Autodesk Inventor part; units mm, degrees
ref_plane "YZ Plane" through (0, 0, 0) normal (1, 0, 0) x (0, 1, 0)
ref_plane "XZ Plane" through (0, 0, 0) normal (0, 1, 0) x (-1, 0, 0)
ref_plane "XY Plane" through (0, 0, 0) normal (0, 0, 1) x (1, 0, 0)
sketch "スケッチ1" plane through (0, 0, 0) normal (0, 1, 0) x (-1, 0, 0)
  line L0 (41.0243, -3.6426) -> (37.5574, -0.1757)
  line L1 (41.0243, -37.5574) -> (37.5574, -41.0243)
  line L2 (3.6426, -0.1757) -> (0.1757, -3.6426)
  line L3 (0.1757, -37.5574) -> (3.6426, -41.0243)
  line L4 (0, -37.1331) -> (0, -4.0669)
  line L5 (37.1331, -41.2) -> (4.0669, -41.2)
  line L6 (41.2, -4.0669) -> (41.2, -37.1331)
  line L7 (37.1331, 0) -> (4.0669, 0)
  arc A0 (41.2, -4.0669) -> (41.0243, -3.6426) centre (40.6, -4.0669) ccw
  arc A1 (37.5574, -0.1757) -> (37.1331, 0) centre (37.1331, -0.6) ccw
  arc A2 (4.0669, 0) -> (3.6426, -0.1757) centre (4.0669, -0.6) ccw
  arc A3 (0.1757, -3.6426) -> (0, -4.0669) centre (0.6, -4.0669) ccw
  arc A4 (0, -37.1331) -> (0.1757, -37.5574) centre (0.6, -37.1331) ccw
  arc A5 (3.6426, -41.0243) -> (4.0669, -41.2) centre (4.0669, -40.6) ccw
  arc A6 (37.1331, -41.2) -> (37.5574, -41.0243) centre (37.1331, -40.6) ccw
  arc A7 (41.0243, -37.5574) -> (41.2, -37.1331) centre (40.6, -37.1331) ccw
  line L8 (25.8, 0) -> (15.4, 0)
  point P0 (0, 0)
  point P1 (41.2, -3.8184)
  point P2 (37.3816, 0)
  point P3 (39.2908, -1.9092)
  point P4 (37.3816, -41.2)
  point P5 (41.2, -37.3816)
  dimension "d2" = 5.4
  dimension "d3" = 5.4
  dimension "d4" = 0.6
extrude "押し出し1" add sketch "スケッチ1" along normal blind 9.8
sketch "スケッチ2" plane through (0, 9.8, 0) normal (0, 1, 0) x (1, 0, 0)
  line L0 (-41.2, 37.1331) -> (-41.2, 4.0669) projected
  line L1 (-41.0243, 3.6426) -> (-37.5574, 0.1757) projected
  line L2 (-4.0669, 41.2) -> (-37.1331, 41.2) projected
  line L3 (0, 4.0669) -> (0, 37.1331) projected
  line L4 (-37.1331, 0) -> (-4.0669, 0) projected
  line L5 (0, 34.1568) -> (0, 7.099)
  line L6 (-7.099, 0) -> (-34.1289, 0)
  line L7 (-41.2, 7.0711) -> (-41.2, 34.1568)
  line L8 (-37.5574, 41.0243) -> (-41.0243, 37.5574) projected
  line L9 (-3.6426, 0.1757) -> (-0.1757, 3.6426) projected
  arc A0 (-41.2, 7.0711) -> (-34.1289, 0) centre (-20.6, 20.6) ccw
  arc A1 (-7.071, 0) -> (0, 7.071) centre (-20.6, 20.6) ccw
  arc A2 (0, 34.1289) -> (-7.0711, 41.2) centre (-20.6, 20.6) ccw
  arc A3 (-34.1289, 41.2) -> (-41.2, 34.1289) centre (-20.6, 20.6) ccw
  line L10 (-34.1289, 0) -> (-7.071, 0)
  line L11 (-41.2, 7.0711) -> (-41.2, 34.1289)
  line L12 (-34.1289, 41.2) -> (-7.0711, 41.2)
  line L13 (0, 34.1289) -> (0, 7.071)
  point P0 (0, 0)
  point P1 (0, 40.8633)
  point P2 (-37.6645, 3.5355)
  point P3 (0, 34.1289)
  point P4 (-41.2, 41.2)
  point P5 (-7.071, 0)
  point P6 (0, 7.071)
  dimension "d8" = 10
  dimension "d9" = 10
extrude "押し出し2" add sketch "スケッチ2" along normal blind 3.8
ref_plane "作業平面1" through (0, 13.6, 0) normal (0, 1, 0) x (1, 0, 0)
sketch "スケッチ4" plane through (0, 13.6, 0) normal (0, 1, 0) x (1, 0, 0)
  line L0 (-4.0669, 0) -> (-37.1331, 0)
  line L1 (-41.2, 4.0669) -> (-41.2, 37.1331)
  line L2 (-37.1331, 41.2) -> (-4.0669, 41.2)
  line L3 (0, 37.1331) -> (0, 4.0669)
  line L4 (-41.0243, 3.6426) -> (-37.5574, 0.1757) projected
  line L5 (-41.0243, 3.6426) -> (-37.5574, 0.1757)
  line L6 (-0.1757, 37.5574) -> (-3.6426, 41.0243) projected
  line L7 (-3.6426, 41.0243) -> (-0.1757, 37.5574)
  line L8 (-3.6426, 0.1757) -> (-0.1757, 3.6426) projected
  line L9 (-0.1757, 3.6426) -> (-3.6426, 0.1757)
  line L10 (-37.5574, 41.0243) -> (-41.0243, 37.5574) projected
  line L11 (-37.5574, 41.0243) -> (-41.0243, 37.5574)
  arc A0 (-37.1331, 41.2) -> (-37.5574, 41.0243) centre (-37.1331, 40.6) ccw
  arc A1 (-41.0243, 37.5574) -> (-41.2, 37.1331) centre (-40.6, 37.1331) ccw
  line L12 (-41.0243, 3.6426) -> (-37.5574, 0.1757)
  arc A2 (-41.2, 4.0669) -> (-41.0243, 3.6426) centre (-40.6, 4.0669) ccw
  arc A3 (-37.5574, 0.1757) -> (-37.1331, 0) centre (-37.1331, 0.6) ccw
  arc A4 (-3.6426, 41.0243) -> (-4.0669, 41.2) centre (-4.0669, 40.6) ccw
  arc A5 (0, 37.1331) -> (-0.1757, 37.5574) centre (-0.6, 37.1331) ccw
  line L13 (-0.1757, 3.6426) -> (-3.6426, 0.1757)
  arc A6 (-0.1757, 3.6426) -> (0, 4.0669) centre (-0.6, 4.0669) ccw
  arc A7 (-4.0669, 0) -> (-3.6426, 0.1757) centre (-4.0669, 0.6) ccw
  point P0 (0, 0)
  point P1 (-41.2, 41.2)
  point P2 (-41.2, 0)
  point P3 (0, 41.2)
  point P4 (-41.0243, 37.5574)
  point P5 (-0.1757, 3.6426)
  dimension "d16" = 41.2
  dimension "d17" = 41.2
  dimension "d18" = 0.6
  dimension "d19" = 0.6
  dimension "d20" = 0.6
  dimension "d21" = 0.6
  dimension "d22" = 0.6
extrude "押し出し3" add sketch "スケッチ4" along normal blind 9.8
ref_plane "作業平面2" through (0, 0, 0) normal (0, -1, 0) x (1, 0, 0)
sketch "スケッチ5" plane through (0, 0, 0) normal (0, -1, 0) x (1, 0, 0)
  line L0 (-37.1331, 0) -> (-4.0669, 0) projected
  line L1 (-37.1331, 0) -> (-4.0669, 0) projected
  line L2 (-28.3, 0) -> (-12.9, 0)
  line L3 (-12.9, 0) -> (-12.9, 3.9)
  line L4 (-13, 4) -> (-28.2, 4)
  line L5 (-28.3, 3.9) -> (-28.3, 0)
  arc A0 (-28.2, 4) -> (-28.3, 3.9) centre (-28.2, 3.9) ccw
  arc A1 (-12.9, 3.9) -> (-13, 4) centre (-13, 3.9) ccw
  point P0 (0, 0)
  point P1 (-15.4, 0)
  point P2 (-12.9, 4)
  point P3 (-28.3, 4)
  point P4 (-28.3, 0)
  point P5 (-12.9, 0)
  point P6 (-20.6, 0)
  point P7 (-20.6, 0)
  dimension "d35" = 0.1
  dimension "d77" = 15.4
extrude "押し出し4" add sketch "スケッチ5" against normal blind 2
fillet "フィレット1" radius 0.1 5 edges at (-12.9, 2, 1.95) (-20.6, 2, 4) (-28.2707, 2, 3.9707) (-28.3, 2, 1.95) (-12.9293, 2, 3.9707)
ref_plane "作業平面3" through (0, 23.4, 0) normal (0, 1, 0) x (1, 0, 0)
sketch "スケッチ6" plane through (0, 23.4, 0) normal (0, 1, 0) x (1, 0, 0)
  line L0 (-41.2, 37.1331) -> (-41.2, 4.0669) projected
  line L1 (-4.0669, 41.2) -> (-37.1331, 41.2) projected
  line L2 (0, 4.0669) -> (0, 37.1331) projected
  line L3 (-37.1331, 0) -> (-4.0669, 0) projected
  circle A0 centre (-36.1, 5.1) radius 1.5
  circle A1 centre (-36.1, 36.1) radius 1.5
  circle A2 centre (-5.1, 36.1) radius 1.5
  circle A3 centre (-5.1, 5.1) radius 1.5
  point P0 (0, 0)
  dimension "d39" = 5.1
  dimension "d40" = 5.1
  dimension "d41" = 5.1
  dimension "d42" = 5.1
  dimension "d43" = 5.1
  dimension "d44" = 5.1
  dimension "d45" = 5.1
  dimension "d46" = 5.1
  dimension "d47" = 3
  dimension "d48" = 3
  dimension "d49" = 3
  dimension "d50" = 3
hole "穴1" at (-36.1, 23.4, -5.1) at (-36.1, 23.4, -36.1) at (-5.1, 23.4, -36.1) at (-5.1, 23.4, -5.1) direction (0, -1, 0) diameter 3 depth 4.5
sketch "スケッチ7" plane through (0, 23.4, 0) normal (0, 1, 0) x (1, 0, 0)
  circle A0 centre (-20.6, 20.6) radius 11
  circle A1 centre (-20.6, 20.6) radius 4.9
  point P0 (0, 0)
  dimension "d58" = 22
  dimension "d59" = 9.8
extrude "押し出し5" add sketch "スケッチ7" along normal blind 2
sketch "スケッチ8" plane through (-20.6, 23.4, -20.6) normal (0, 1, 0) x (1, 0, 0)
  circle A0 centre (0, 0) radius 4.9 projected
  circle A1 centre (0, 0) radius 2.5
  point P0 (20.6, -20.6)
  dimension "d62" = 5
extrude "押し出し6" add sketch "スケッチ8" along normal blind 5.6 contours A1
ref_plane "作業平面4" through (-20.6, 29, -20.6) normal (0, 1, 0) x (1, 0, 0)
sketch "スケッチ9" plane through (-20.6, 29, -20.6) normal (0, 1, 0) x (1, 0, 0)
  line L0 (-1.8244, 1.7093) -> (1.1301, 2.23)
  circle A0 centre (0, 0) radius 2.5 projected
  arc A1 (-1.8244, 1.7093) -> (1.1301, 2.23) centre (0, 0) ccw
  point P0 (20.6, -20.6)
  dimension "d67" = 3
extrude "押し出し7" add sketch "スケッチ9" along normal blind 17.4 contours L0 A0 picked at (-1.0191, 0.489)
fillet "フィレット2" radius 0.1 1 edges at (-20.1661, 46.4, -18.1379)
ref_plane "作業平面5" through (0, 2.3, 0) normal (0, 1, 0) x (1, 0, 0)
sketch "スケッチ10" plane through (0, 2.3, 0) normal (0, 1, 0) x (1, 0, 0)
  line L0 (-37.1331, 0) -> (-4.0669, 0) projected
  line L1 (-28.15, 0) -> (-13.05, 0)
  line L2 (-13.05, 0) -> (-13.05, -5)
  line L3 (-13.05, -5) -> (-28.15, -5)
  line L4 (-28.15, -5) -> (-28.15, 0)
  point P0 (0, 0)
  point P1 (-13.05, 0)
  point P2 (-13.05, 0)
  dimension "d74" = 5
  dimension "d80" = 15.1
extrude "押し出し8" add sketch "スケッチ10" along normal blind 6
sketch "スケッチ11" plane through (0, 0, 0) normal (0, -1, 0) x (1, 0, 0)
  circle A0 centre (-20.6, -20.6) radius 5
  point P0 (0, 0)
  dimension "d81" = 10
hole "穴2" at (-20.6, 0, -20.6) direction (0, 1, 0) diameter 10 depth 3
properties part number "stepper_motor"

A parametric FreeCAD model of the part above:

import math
import FreeCAD as App
import Part
import Sketcher


def edges_at(feature, points):
    """Names of the edges that pass closest to the given points."""
    edges = feature.Shape.Edges
    near = lambda p: min(range(len(edges)), key=lambda i: edges[i].distToShape(Part.Vertex(*p))[0])
    return sorted({f"Edge{near(p) + 1}" for p in points})

doc = App.newDocument("Part")
params = doc.addObject("Spreadsheet::Sheet", "Params")
for row, (alias, value) in enumerate([
    ("sketch1_radius", "0.6 mm"),
    ("pad1_length", "9.8 mm"),
    ("pad2_length", "3.8 mm"),
    ("sketch3_radius", "0.6 mm"),
    ("pad3_length", "9.8 mm"),
    ("sketch4_radius", "0.1 mm"),
    ("sketch4_width", "15.4 mm"),
    ("sketch4_height", "3.9 mm"),
    ("pad4_length", "2 mm"),
    ("fillet_radius", "0.1 mm"),
    ("sketch5_diameter", "3 mm"),
    ("hole_diameter", "3 mm"),
    ("hole_depth", "4.5 mm"),
    ("sketch6_diameter", "22 mm"),
    ("sketch6_diameter2", "9.8 mm"),
    ("pad5_length", "2 mm"),
    ("sketch7_diameter", "5 mm"),
    ("pad6_length", "5.6 mm"),
    ("sketch8_length", "3 mm"),
    ("sketch8_radius", "2.5 mm"),
    ("pad7_length", "17.4 mm"),
    ("fillet2_radius", "0.1 mm"),
    ("sketch9_height", "5 mm"),
    ("sketch9_width", "15.1 mm"),
    ("pad8_length", "6 mm"),
    ("sketch10_diameter", "10 mm"),
    ("hole2_diameter", "10 mm"),
    ("hole2_depth", "3 mm"),
], start=1):
    params.set(f"A{row}", alias)
    params.set(f"B{row}", "=" + value)
    params.setAlias(f"B{row}", alias)

body = doc.addObject("PartDesign::Body", "Body")

# Sketch on XZ plane
sketch1 = body.newObject("Sketcher::SketchObject", "Sketch")
sketch1.AttachmentSupport = (doc.getObject("XZ_Plane"), [""])
sketch1.MapMode = "FlatFace"
sketch1.addGeometry([
    Part.ArcOfCircle(Part.Circle(App.Vector(-40.6, -4.07, 0), App.Vector(0, 0, 1), 0.6), math.radians(135), math.radians(180)),  # 0
    Part.LineSegment(App.Vector(-41.02, -3.64, 0), App.Vector(-37.56, -0.18, 0)),  # 1
    Part.ArcOfCircle(Part.Circle(App.Vector(-37.13, -0.6, 0), App.Vector(0, 0, 1), 0.6), math.radians(90), math.radians(135)),  # 2
    Part.LineSegment(App.Vector(-37.13, 0, 0), App.Vector(-4.07, 0, 0)),  # 3
    Part.ArcOfCircle(Part.Circle(App.Vector(-4.07, -0.6, 0), App.Vector(0, 0, 1), 0.6), math.radians(45), math.radians(90)),  # 4
    Part.LineSegment(App.Vector(-3.64, -0.18, 0), App.Vector(-0.18, -3.64, 0)),  # 5
    Part.ArcOfCircle(Part.Circle(App.Vector(-0.6, -4.07, 0), App.Vector(0, 0, 1), 0.6), math.radians(0), math.radians(45)),  # 6
    Part.LineSegment(App.Vector(0, -4.07, 0), App.Vector(0, -37.13, 0)),  # 7
    Part.ArcOfCircle(Part.Circle(App.Vector(-0.6, -37.13, 0), App.Vector(0, 0, 1), 0.6), math.radians(-45), math.radians(0)),  # 8
    Part.LineSegment(App.Vector(-0.18, -37.56, 0), App.Vector(-3.64, -41.02, 0)),  # 9
    Part.ArcOfCircle(Part.Circle(App.Vector(-4.07, -40.6, 0), App.Vector(0, 0, 1), 0.6), math.radians(-90), math.radians(-45)),  # 10
    Part.LineSegment(App.Vector(-4.07, -41.2, 0), App.Vector(-37.13, -41.2, 0)),  # 11
    Part.ArcOfCircle(Part.Circle(App.Vector(-37.13, -40.6, 0), App.Vector(0, 0, 1), 0.6), math.radians(-135), math.radians(-90)),  # 12
    Part.LineSegment(App.Vector(-37.56, -41.02, 0), App.Vector(-41.02, -37.56, 0)),  # 13
    Part.ArcOfCircle(Part.Circle(App.Vector(-40.6, -37.13, 0), App.Vector(0, 0, 1), 0.6), math.radians(180), math.radians(225)),  # 14
    Part.LineSegment(App.Vector(-41.2, -37.13, 0), App.Vector(-41.2, -4.07, 0)),  # 15
], False)
sketch1.addConstraint([
    Sketcher.Constraint("Tangent", 0, 1, 1, 1),
    Sketcher.Constraint("Tangent", 1, 2, 2, 2),
    Sketcher.Constraint("Tangent", 2, 1, 3, 1),
    Sketcher.Constraint("Tangent", 3, 2, 4, 2),
    Sketcher.Constraint("Tangent", 4, 1, 5, 1),
    Sketcher.Constraint("Tangent", 5, 2, 6, 2),
    Sketcher.Constraint("Tangent", 6, 1, 7, 1),
    Sketcher.Constraint("Tangent", 7, 2, 8, 2),
    Sketcher.Constraint("Tangent", 8, 1, 9, 1),
    Sketcher.Constraint("Tangent", 9, 2, 10, 2),
    Sketcher.Constraint("Tangent", 10, 1, 11, 1),
    Sketcher.Constraint("Tangent", 11, 2, 12, 2),
    Sketcher.Constraint("Tangent", 12, 1, 13, 1),
    Sketcher.Constraint("Tangent", 13, 2, 14, 2),
    Sketcher.Constraint("Tangent", 14, 1, 15, 1),
    Sketcher.Constraint("Tangent", 15, 2, 0, 2),
    Sketcher.Constraint("Horizontal", 3),
    Sketcher.Constraint("Vertical", 7),
    Sketcher.Constraint("Horizontal", 11),
    Sketcher.Constraint("Vertical", 15),
    Sketcher.Constraint("Equal", 0, 2),
    Sketcher.Constraint("Equal", 2, 4),
    Sketcher.Constraint("Equal", 4, 6),
    Sketcher.Constraint("Equal", 6, 8),
    Sketcher.Constraint("Equal", 8, 10),
    Sketcher.Constraint("Equal", 10, 12),
    Sketcher.Constraint("Equal", 12, 14),
    Sketcher.Constraint("PointOnObject", 2, 1, -1),
    Sketcher.Constraint("PointOnObject", 6, 1, -2),
    Sketcher.Constraint("Perpendicular", 1, 5),
    Sketcher.Constraint("Perpendicular", 5, 9),
    Sketcher.Constraint("Perpendicular", 9, 13),
    Sketcher.Constraint("Horizontal", 0, 3, 6, 3),
    Sketcher.Constraint("Horizontal", 8, 3, 14, 3),
    Sketcher.Constraint("Horizontal", 1, 2, 4, 1),
    Sketcher.Constraint("Vertical", 4, 3, 10, 3),
    Sketcher.Constraint("Equal", 11, 7),
    Sketcher.Constraint("Radius", 0, 0.6),
    Sketcher.Constraint("DistanceX", 0, 3, 6, 3, 40.0),
    Sketcher.Constraint("Distance", 1, 4.903),
])
sketch1.setExpression("Constraints[37]", "Params.sketch1_radius")
pad1 = body.newObject("PartDesign::Pad", "Pad")
pad1.Profile = sketch1
pad1.setExpression("Length", "Params.pad1_length")
pad1.Reversed = True

# Sketch on XZ plane
sketch2 = body.newObject("Sketcher::SketchObject", "Sketch001")
sketch2.AttachmentSupport = (doc.getObject("XZ_Plane"), [""])
sketch2.MapMode = "FlatFace"
sketch2.AttachmentOffset = App.Placement(App.Vector(0, 0, -9.8), App.Rotation())
sketch2.addGeometry([
    Part.ArcOfCircle(Part.Circle(App.Vector(-21, -21, 0), App.Vector(0, 0, 1), 25), math.radians(-147), math.radians(-123)),  # 0
    Part.LineSegment(App.Vector(-41, -34, 0), App.Vector(-41, -7, 0)),  # 1
    Part.ArcOfCircle(Part.Circle(App.Vector(-21, -21, 0), App.Vector(0, 0, 1), 25), math.radians(123), math.radians(147)),  # 2
    Part.LineSegment(App.Vector(-34, 0, 0), App.Vector(-7, 0, 0)),  # 3
    Part.ArcOfCircle(Part.Circle(App.Vector(-21, -21, 0), App.Vector(0, 0, 1), 25), math.radians(33), math.radians(57)),  # 4
    Part.LineSegment(App.Vector(0, -7, 0), App.Vector(0, -34, 0)),  # 5
    Part.ArcOfCircle(Part.Circle(App.Vector(-21, -21, 0), App.Vector(0, 0, 1), 25), math.radians(-57), math.radians(-33)),  # 6
    Part.LineSegment(App.Vector(-7, -41, 0), App.Vector(-34, -41, 0)),  # 7
], False)
sketch2.addConstraint([
    Sketcher.Constraint("Coincident", 0, 1, 1, 1),
    Sketcher.Constraint("Coincident", 1, 2, 2, 2),
    Sketcher.Constraint("Coincident", 2, 1, 3, 1),
    Sketcher.Constraint("Coincident", 3, 2, 4, 2),
    Sketcher.Constraint("Coincident", 4, 1, 5, 1),
    Sketcher.Constraint("Coincident", 5, 2, 6, 2),
    Sketcher.Constraint("Coincident", 6, 1, 7, 1),
    Sketcher.Constraint("Coincident", 7, 2, 0, 2),
    Sketcher.Constraint("Vertical", 1),
    Sketcher.Constraint("Horizontal", 3),
    Sketcher.Constraint("Vertical", 5),
    Sketcher.Constraint("Horizontal", 7),
    Sketcher.Constraint("Coincident", 2, 3, 0, 3),
    Sketcher.Constraint("Coincident", 4, 3, 0, 3),
    Sketcher.Constraint("Coincident", 6, 3, 0, 3),
    Sketcher.Constraint("Equal", 0, 2),
    Sketcher.Constraint("Equal", 2, 4),
    Sketcher.Constraint("Equal", 4, 6),
    Sketcher.Constraint("PointOnObject", 2, 1, -1),
    Sketcher.Constraint("PointOnObject", 4, 1, -2),
    Sketcher.Constraint("Horizontal", 1, 2, 4, 1),
    Sketcher.Constraint("Vertical", 3, 2, 6, 1),
    Sketcher.Constraint("Equal", 7, 1),
    Sketcher.Constraint("DistanceX", 0, 3, -1, 1, 20.6),
    Sketcher.Constraint("Radius", 0, 24.6453),
])
pad2 = body.newObject("PartDesign::Pad", "Pad001")
pad2.Profile = sketch2
pad2.setExpression("Length", "Params.pad2_length")
pad2.Reversed = True

# Sketch on XZ plane
sketch3 = body.newObject("Sketcher::SketchObject", "Sketch002")
sketch3.AttachmentSupport = (doc.getObject("XZ_Plane"), [""])
sketch3.MapMode = "FlatFace"
sketch3.AttachmentOffset = App.Placement(App.Vector(0, 0, -13.6), App.Rotation())
sketch3.addGeometry([
    Part.LineSegment(App.Vector(-37.13, 0, 0), App.Vector(-4.07, 0, 0)),  # 0
    Part.ArcOfCircle(Part.Circle(App.Vector(-4.07, -0.6, 0), App.Vector(0, 0, 1), 0.6), math.radians(45), math.radians(90)),  # 1
    Part.LineSegment(App.Vector(-3.64, -0.18, 0), App.Vector(-0.18, -3.64, 0)),  # 2
    Part.ArcOfCircle(Part.Circle(App.Vector(-0.6, -4.07, 0), App.Vector(0, 0, 1), 0.6), math.radians(0), math.radians(45)),  # 3
    Part.LineSegment(App.Vector(0, -4.07, 0), App.Vector(0, -37.13, 0)),  # 4
    Part.ArcOfCircle(Part.Circle(App.Vector(-0.6, -37.13, 0), App.Vector(0, 0, 1), 0.6), math.radians(-45), math.radians(0)),  # 5
    Part.LineSegment(App.Vector(-0.18, -37.56, 0), App.Vector(-3.64, -41.02, 0)),  # 6
    Part.ArcOfCircle(Part.Circle(App.Vector(-4.07, -40.6, 0), App.Vector(0, 0, 1), 0.6), math.radians(-90), math.radians(-45)),  # 7
    Part.LineSegment(App.Vector(-4.07, -41.2, 0), App.Vector(-37.13, -41.2, 0)),  # 8
    Part.ArcOfCircle(Part.Circle(App.Vector(-37.13, -40.6, 0), App.Vector(0, 0, 1), 0.6), math.radians(-135), math.radians(-90)),  # 9
    Part.LineSegment(App.Vector(-37.56, -41.02, 0), App.Vector(-41.02, -37.56, 0)),  # 10
    Part.ArcOfCircle(Part.Circle(App.Vector(-40.6, -37.13, 0), App.Vector(0, 0, 1), 0.6), math.radians(180), math.radians(225)),  # 11
    Part.LineSegment(App.Vector(-41.2, -37.13, 0), App.Vector(-41.2, -4.07, 0)),  # 12
    Part.ArcOfCircle(Part.Circle(App.Vector(-40.6, -4.07, 0), App.Vector(0, 0, 1), 0.6), math.radians(135), math.radians(180)),  # 13
    Part.LineSegment(App.Vector(-41.02, -3.64, 0), App.Vector(-37.56, -0.18, 0)),  # 14
    Part.ArcOfCircle(Part.Circle(App.Vector(-37.13, -0.6, 0), App.Vector(0, 0, 1), 0.6), math.radians(90), math.radians(135)),  # 15
], False)
sketch3.addConstraint([
    Sketcher.Constraint("Tangent", 0, 2, 1, 2),
    Sketcher.Constraint("Tangent", 1, 1, 2, 1),
    Sketcher.Constraint("Tangent", 2, 2, 3, 2),
    Sketcher.Constraint("Tangent", 3, 1, 4, 1),
    Sketcher.Constraint("Tangent", 4, 2, 5, 2),
    Sketcher.Constraint("Tangent", 5, 1, 6, 1),
    Sketcher.Constraint("Tangent", 6, 2, 7, 2),
    Sketcher.Constraint("Tangent", 7, 1, 8, 1),
    Sketcher.Constraint("Tangent", 8, 2, 9, 2),
    Sketcher.Constraint("Tangent", 9, 1, 10, 1),
    Sketcher.Constraint("Tangent", 10, 2, 11, 2),
    Sketcher.Constraint("Tangent", 11, 1, 12, 1),
    Sketcher.Constraint("Tangent", 12, 2, 13, 2),
    Sketcher.Constraint("Tangent", 13, 1, 14, 1),
    Sketcher.Constraint("Tangent", 14, 2, 15, 2),
    Sketcher.Constraint("Tangent", 15, 1, 0, 1),
    Sketcher.Constraint("Horizontal", 0),
    Sketcher.Constraint("Vertical", 4),
    Sketcher.Constraint("Horizontal", 8),
    Sketcher.Constraint("Vertical", 12),
    Sketcher.Constraint("Equal", 1, 3),
    Sketcher.Constraint("Equal", 3, 5),
    Sketcher.Constraint("Equal", 5, 7),
    Sketcher.Constraint("Equal", 7, 9),
    Sketcher.Constraint("Equal", 9, 11),
    Sketcher.Constraint("Equal", 11, 13),
    Sketcher.Constraint("Equal", 13, 15),
    Sketcher.Constraint("PointOnObject", 0, 2, -1),
    Sketcher.Constraint("PointOnObject", 3, 1, -2),
    Sketcher.Constraint("Perpendicular", 2, 6),
    Sketcher.Constraint("Perpendicular", 6, 10),
    Sketcher.Constraint("Perpendicular", 10, 14),
    Sketcher.Constraint("Horizontal", 5, 3, 11, 3),
    Sketcher.Constraint("Horizontal", 3, 3, 13, 3),
    Sketcher.Constraint("Horizontal", 6, 2, 9, 1),
    Sketcher.Constraint("Vertical", 1, 3, 7, 3),
    Sketcher.Constraint("Equal", 8, 4),
    Sketcher.Constraint("Radius", 1, 0.6),
    Sketcher.Constraint("DistanceY", 7, 1, -1, 1, 41.2),
    Sketcher.Constraint("Distance", 2, 4.903),
])
sketch3.setExpression("Constraints[37]", "Params.sketch3_radius")
pad3 = body.newObject("PartDesign::Pad", "Pad002")
pad3.Profile = sketch3
pad3.setExpression("Length", "Params.pad3_length")
pad3.Reversed = True

# Sketch on XZ plane
sketch4 = body.newObject("Sketcher::SketchObject", "Sketch003")
sketch4.AttachmentSupport = (doc.getObject("XZ_Plane"), [""])
sketch4.MapMode = "FlatFace"
sketch4.addGeometry([
    Part.LineSegment(App.Vector(-28.3, 3.9, 0), App.Vector(-28.3, 0, 0)),  # 0
    Part.LineSegment(App.Vector(-28.3, 0, 0), App.Vector(-12.9, 0, 0)),  # 1
    Part.LineSegment(App.Vector(-12.9, 0, 0), App.Vector(-12.9, 3.9, 0)),  # 2
    Part.ArcOfCircle(Part.Circle(App.Vector(-13, 3.9, 0), App.Vector(0, 0, 1), 0.1), math.radians(0), math.radians(90)),  # 3
    Part.LineSegment(App.Vector(-13, 4, 0), App.Vector(-28.2, 4, 0)),  # 4
    Part.ArcOfCircle(Part.Circle(App.Vector(-28.2, 3.9, 0), App.Vector(0, 0, 1), 0.1), math.radians(90), math.radians(180)),  # 5
], False)
sketch4.addConstraint([
    Sketcher.Constraint("Coincident", 0, 2, 1, 1),
    Sketcher.Constraint("Coincident", 1, 2, 2, 1),
    Sketcher.Constraint("Tangent", 2, 2, 3, 1),
    Sketcher.Constraint("Tangent", 3, 2, 4, 1),
    Sketcher.Constraint("Tangent", 4, 2, 5, 1),
    Sketcher.Constraint("Tangent", 5, 2, 0, 1),
    Sketcher.Constraint("Vertical", 0),
    Sketcher.Constraint("Horizontal", 1),
    Sketcher.Constraint("Vertical", 2),
    Sketcher.Constraint("Horizontal", 4),
    Sketcher.Constraint("Equal", 3, 5),
    Sketcher.Constraint("PointOnObject", 0, 2, -1),
    Sketcher.Constraint("Radius", 3, 0.1),
    Sketcher.Constraint("DistanceX", 1, 1, 1, 2, 15.4),
    Sketcher.Constraint("DistanceY", 0, 2, 0, 1, 3.9),
    Sketcher.Constraint("DistanceX", 3, 3, -1, 1, 13.0),
])
sketch4.setExpression("Constraints[12]", "Params.sketch4_radius")
sketch4.setExpression("Constraints[13]", "Params.sketch4_width")
sketch4.setExpression("Constraints[14]", "Params.sketch4_height")
pad4 = body.newObject("PartDesign::Pad", "Pad003")
pad4.Profile = sketch4
pad4.setExpression("Length", "Params.pad4_length")
pad4.Reversed = True
doc.recompute()

fillet = body.newObject("PartDesign::Fillet", "Fillet")
fillet.Base = (pad4, edges_at(pad4, [
    (-12.9, 2, 1.95),
    (-20.6, 2, 4),
    (-28.271, 2, 3.971),
    (-28.3, 2, 1.95),
    (-12.929, 2, 3.971),
]))
fillet.setExpression("Radius", "Params.fillet_radius")

# Sketch on XZ plane
sketch5 = body.newObject("Sketcher::SketchObject", "Sketch004")
sketch5.AttachmentSupport = (doc.getObject("XZ_Plane"), [""])
sketch5.MapMode = "FlatFace"
sketch5.AttachmentOffset = App.Placement(App.Vector(0, 0, -23.4), App.Rotation())
sketch5.addGeometry([
    Part.Circle(App.Vector(-36.1, -5.1, 0), App.Vector(0, 0, 1), 1.5),
    Part.Circle(App.Vector(-36.1, -36.1, 0), App.Vector(0, 0, 1), 1.5),
    Part.Circle(App.Vector(-5.1, -36.1, 0), App.Vector(0, 0, 1), 1.5),
    Part.Circle(App.Vector(-5.1, -5.1, 0), App.Vector(0, 0, 1), 1.5),
], False)
sketch5.addConstraint([
    Sketcher.Constraint("Equal", 0, 1),
    Sketcher.Constraint("Equal", 1, 2),
    Sketcher.Constraint("Equal", 2, 3),
    Sketcher.Constraint("Horizontal", 1, 3, 2, 3),
    Sketcher.Constraint("Horizontal", 0, 3, 3, 3),
    Sketcher.Constraint("Vertical", 0, 3, 1, 3),
    Sketcher.Constraint("Vertical", 2, 3, 3, 3),
    Sketcher.Constraint("Diameter", 0, 3.0),
    Sketcher.Constraint("DistanceY", 1, 3, 0, 3, 31.0),
    Sketcher.Constraint("DistanceX", 1, 3, 2, 3, 31.0),
    Sketcher.Constraint("DistanceX", 0, 3, -1, 1, 36.1),
    Sketcher.Constraint("DistanceY", 0, 3, -1, 1, 5.1),
])
sketch5.setExpression("Constraints[7]", "Params.sketch5_diameter")
doc.recompute()
hole = body.newObject("PartDesign::Hole", "Hole")
hole.Profile = sketch5
hole.ThreadType = "None"
hole.setExpression("Diameter", "Params.hole_diameter")
hole.DepthType = "Dimension"
hole.setExpression("Depth", "Params.hole_depth")
hole.DrillPoint = "Flat"
hole.Reversed = True

# Sketch on XZ plane
sketch6 = body.newObject("Sketcher::SketchObject", "Sketch005")
sketch6.AttachmentSupport = (doc.getObject("XZ_Plane"), [""])
sketch6.MapMode = "FlatFace"
sketch6.AttachmentOffset = App.Placement(App.Vector(0, 0, -23.4), App.Rotation())
sketch6.addGeometry([
    Part.Circle(App.Vector(-20.6, -20.6, 0), App.Vector(0, 0, 1), 11),
    Part.Circle(App.Vector(-20.6, -20.6, 0), App.Vector(0, 0, 1), 4.9),
], False)
sketch6.addConstraint([
    Sketcher.Constraint("Coincident", 1, 3, 0, 3),
    Sketcher.Constraint("Diameter", 0, 22.0),
    Sketcher.Constraint("Diameter", 1, 9.8),
    Sketcher.Constraint("DistanceX", 0, 3, -1, 1, 20.6),
    Sketcher.Constraint("DistanceY", 0, 3, -1, 1, 20.6),
])
sketch6.setExpression("Constraints[1]", "Params.sketch6_diameter")
sketch6.setExpression("Constraints[2]", "Params.sketch6_diameter2")
pad5 = body.newObject("PartDesign::Pad", "Pad004")
pad5.Profile = sketch6
pad5.setExpression("Length", "Params.pad5_length")
pad5.Reversed = True

# Sketch on XZ plane
sketch7 = body.newObject("Sketcher::SketchObject", "Sketch006")
sketch7.AttachmentSupport = (doc.getObject("XZ_Plane"), [""])
sketch7.MapMode = "FlatFace"
sketch7.AttachmentOffset = App.Placement(App.Vector(0, 0, -23.4), App.Rotation())
sketch7.addGeometry(Part.Circle(App.Vector(-20.6, -20.6, 0), App.Vector(0, 0, 1), 2.5), False)
sketch7.addConstraint([
    Sketcher.Constraint("Diameter", 0, 5.0),
    Sketcher.Constraint("DistanceX", 0, 3, -1, 1, 20.6),
    Sketcher.Constraint("DistanceY", 0, 3, -1, 1, 20.6),
])
sketch7.setExpression("Constraints[0]", "Params.sketch7_diameter")
pad6 = body.newObject("PartDesign::Pad", "Pad005")
pad6.Profile = sketch7
pad6.setExpression("Length", "Params.pad6_length")
pad6.Reversed = True

# Sketch on XZ plane
sketch8 = body.newObject("Sketcher::SketchObject", "Sketch007")
sketch8.AttachmentSupport = (doc.getObject("XZ_Plane"), [""])
sketch8.MapMode = "FlatFace"
sketch8.AttachmentOffset = App.Placement(App.Vector(0, 0, -29), App.Rotation())
sketch8.addGeometry([
    Part.LineSegment(App.Vector(-19.5, -22.8, 0), App.Vector(-22.4, -22.3, 0)),
    Part.ArcOfCircle(Part.Circle(App.Vector(-20.6, -20.6, 0), App.Vector(0, 0, 1), 2.5), math.radians(-63), math.radians(223)),
], False)
sketch8.addConstraint([
    Sketcher.Constraint("Coincident", 0, 1, 1, 1),
    Sketcher.Constraint("Coincident", 1, 2, 0, 2),
    Sketcher.Constraint("Distance", 0, 3.0),
    Sketcher.Constraint("Radius", 1, 2.5),
    Sketcher.Constraint("DistanceX", 1, 3, -1, 1, 20.6),
    Sketcher.Constraint("DistanceY", 1, 3, -1, 1, 20.6),
    Sketcher.Constraint("DistanceX", 0, 1, -1, 1, 19.47),
])
sketch8.setExpression("Constraints[2]", "Params.sketch8_length")
sketch8.setExpression("Constraints[3]", "Params.sketch8_radius")
pad7 = body.newObject("PartDesign::Pad", "Pad006")
pad7.Profile = sketch8
pad7.setExpression("Length", "Params.pad7_length")
pad7.Reversed = True
doc.recompute()

fillet2 = body.newObject("PartDesign::Fillet", "Fillet001")
fillet2.Base = (pad7, edges_at(pad7, [(-20.166, 46.4, -18.138)]))
fillet2.setExpression("Radius", "Params.fillet2_radius")

# Sketch on XZ plane
sketch9 = body.newObject("Sketcher::SketchObject", "Sketch008")
sketch9.AttachmentSupport = (doc.getObject("XZ_Plane"), [""])
sketch9.MapMode = "FlatFace"
sketch9.AttachmentOffset = App.Placement(App.Vector(0, 0, -2.3), App.Rotation())
sketch9.addGeometry([
    Part.LineSegment(App.Vector(-13, 0, 0), App.Vector(-28, 0, 0)),
    Part.LineSegment(App.Vector(-28, 0, 0), App.Vector(-28, 5, 0)),
    Part.LineSegment(App.Vector(-28, 5, 0), App.Vector(-13, 5, 0)),
    Part.LineSegment(App.Vector(-13, 5, 0), App.Vector(-13, 0, 0)),
], False)
sketch9.addConstraint([
    Sketcher.Constraint("Coincident", 0, 2, 1, 1),
    Sketcher.Constraint("Coincident", 1, 2, 2, 1),
    Sketcher.Constraint("Coincident", 2, 2, 3, 1),
    Sketcher.Constraint("Coincident", 3, 2, 0, 1),
    Sketcher.Constraint("Horizontal", 0),
    Sketcher.Constraint("Vertical", 1),
    Sketcher.Constraint("Horizontal", 2),
    Sketcher.Constraint("Vertical", 3),
    Sketcher.Constraint("PointOnObject", 0, 2, -1),
    Sketcher.Constraint("DistanceY", 1, 1, 1, 2, 5.0),
    Sketcher.Constraint("DistanceX", 0, 2, 0, 1, 15.1),
    Sketcher.Constraint("DistanceX", 0, 2, -1, 1, 28.15),
])
sketch9.setExpression("Constraints[9]", "Params.sketch9_height")
sketch9.setExpression("Constraints[10]", "Params.sketch9_width")
pad8 = body.newObject("PartDesign::Pad", "Pad007")
pad8.Profile = sketch9
pad8.setExpression("Length", "Params.pad8_length")
pad8.Reversed = True

# Sketch on XZ plane
sketch10 = body.newObject("Sketcher::SketchObject", "Sketch009")
sketch10.AttachmentSupport = (doc.getObject("XZ_Plane"), [""])
sketch10.MapMode = "FlatFace"
sketch10.addGeometry(Part.Circle(App.Vector(-21, -21, 0), App.Vector(0, 0, 1), 5), False)
sketch10.addConstraint([
    Sketcher.Constraint("Diameter", 0, 10.0),
    Sketcher.Constraint("DistanceX", 0, 3, -1, 1, 20.6),
    Sketcher.Constraint("DistanceY", 0, 3, -1, 1, 20.6),
])
sketch10.setExpression("Constraints[0]", "Params.sketch10_diameter")
doc.recompute()
hole2 = body.newObject("PartDesign::Hole", "Hole001")
hole2.Profile = sketch10
hole2.ThreadType = "None"
hole2.setExpression("Diameter", "Params.hole2_diameter")
hole2.DepthType = "Dimension"
hole2.setExpression("Depth", "Params.hole2_depth")
hole2.DrillPoint = "Flat"

doc.recompute()
